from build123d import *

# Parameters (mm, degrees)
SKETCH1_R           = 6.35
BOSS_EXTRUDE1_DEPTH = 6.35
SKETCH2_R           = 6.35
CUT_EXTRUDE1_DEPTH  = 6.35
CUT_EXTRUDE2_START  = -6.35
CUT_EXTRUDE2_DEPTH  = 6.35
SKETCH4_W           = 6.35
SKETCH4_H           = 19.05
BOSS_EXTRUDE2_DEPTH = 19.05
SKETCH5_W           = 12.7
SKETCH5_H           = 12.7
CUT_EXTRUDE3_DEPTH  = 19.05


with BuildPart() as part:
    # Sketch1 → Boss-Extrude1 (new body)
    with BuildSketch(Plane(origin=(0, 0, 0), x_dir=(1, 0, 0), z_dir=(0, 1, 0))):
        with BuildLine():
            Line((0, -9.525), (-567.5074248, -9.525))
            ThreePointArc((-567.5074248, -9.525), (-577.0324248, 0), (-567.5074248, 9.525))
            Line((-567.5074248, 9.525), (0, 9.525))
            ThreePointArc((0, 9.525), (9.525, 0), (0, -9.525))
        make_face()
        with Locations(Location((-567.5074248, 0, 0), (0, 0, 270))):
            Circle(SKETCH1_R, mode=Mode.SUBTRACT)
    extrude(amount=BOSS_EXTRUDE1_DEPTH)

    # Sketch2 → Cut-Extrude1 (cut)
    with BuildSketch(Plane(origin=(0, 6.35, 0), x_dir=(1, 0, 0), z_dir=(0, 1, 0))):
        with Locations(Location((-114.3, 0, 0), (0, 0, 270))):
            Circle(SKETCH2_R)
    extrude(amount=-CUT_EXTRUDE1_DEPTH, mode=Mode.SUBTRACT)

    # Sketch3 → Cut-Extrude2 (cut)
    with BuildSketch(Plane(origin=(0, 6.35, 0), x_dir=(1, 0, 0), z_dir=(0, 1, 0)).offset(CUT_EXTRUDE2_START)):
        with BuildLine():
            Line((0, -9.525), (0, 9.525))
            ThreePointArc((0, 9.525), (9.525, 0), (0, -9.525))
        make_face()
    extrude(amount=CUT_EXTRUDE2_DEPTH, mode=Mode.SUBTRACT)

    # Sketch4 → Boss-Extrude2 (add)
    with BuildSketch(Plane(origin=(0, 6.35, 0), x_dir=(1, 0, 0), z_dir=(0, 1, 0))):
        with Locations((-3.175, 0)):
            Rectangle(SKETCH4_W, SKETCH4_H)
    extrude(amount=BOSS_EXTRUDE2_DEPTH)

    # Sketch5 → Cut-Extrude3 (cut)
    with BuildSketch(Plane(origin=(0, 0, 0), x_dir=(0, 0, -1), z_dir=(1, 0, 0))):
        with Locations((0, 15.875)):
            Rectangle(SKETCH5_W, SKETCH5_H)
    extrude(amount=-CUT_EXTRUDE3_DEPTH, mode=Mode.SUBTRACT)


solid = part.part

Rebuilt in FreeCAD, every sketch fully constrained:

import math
import FreeCAD as App
import Part
import Sketcher

V = App.Vector
Q = App.Units.Quantity

doc = App.newDocument("Part")
params = doc.addObject("Spreadsheet::Sheet", "Params")
for row, (alias, value) in enumerate([
    ("sketch1_diameter", "0.5 in"),
    ("sketch1_radius", "0.375 in"),
    ("pad1_length", "0.25 in"),
    ("sketch2_diameter", "0.5 in"),
    ("pocket1_length", "0.25 in"),
    ("sketch3_radius", "0.375 in"),
    ("pocket2_length", "0.25 in"),
    ("sketch4_width", "0.25 in"),
    ("sketch4_height", "0.75 in"),
    ("pad2_length", "0.75 in"),
    ("sketch5_width", "0.5 in"),
    ("pocket3_length", "0.75 in"),
], start=1):
    params.set(f"A{row}", alias)
    params.set(f"B{row}", "=" + value)
    params.setAlias(f"B{row}", alias)

body = doc.addObject("PartDesign::Body", "Body")

# Sketch on XZ plane
sketch1 = body.newObject("Sketcher::SketchObject", "Sketch")
sketch1.AttachmentSupport = (doc.getObject("XZ_Plane"), [""])
sketch1.MapMode = "FlatFace"
sketch1.addGeometry([
    Part.LineSegment(V(-568, 10, 0), V(0, 10, 0)),  # 0
    Part.ArcOfCircle(Part.Circle(V(0, 0, 0), V(0, 0, 1), 10), math.radians(-90), math.radians(90)),  # 1
    Part.LineSegment(V(0, -10, 0), V(-568, -10, 0)),  # 2
    Part.ArcOfCircle(Part.Circle(V(-568, 0, 0), V(0, 0, 1), 10), math.radians(90), math.radians(270)),  # 3
    Part.Circle(V(-568, 0, 0), V(0, 0, 1), 6),  # 4
], False)
sketch1.addConstraint([
    Sketcher.Constraint("Tangent", 0, 2, 1, 2),
    Sketcher.Constraint("Tangent", 1, 1, 2, 1),
    Sketcher.Constraint("Tangent", 2, 2, 3, 2),
    Sketcher.Constraint("Tangent", 3, 1, 0, 1),
    Sketcher.Constraint("Horizontal", 0),
    Sketcher.Constraint("Horizontal", 2),
    Sketcher.Constraint("Coincident", 1, 3, -1, 1),
    Sketcher.Constraint("Coincident", 4, 3, 3, 3),
    Sketcher.Constraint("Diameter", 4, Q("0.5 in")),
    Sketcher.Constraint("Radius", 1, Q("0.375 in")),
    Sketcher.Constraint("DistanceX", 0, 1, 0, 2, 567.507425),
])
sketch1.setExpression("Constraints[8]", "Params.sketch1_diameter")
sketch1.setExpression("Constraints[9]", "Params.sketch1_radius")
pad1 = body.newObject("PartDesign::Pad", "Pad")
pad1.Profile = sketch1
pad1.setExpression("Length", "Params.pad1_length")
pad1.Reversed = True

# Sketch on XZ plane
sketch2 = body.newObject("Sketcher::SketchObject", "Sketch001")
sketch2.AttachmentSupport = (doc.getObject("XZ_Plane"), [""])
sketch2.MapMode = "FlatFace"
sketch2.AttachmentOffset = App.Placement(V(0, 0, -0.25 * 25.4), App.Rotation())
sketch2.addGeometry(Part.Circle(V(-114, 0, 0), V(0, 0, 1), 6), False)
sketch2.addConstraint([
    Sketcher.Constraint("PointOnObject", 0, 3, -1),
    Sketcher.Constraint("Diameter", 0, Q("0.5 in")),
    Sketcher.Constraint("DistanceX", 0, 3, -1, 1, Q("4.5 in")),
])
sketch2.setExpression("Constraints[1]", "Params.sketch2_diameter")
pocket1 = body.newObject("PartDesign::Pocket", "Pocket")
pocket1.Profile = sketch2
pocket1.setExpression("Length", "Params.pocket1_length")
pocket1.Reversed = True

# Sketch on XZ plane
sketch3 = body.newObject("Sketcher::SketchObject", "Sketch002")
sketch3.AttachmentSupport = (doc.getObject("XZ_Plane"), [""])
sketch3.MapMode = "FlatFace"
sketch3.addGeometry([
    Part.LineSegment(V(0, -10, 0), V(0, 10, 0)),
    Part.ArcOfCircle(Part.Circle(V(0, 0, 0), V(0, 0, 1), 10), math.radians(-90), math.radians(90)),
], False)
sketch3.addConstraint([
    Sketcher.Constraint("Coincident", 0, 1, 1, 1),
    Sketcher.Constraint("Coincident", 1, 2, 0, 2),
    Sketcher.Constraint("Vertical", 0),
    Sketcher.Constraint("Coincident", 1, 3, -1, 1),
    Sketcher.Constraint("PointOnObject", 0, 1, -2),
    Sketcher.Constraint("Radius", 1, Q("0.375 in")),
])
sketch3.setExpression("Constraints[5]", "Params.sketch3_radius")
pocket2 = body.newObject("PartDesign::Pocket", "Pocket001")
pocket2.Profile = sketch3
pocket2.setExpression("Length", "Params.pocket2_length")

# Sketch on XZ plane
sketch4 = body.newObject("Sketcher::SketchObject", "Sketch003")
sketch4.AttachmentSupport = (doc.getObject("XZ_Plane"), [""])
sketch4.MapMode = "FlatFace"
sketch4.AttachmentOffset = App.Placement(V(0, 0, -0.25 * 25.4), App.Rotation())
sketch4.addGeometry([
    Part.LineSegment(V(-6, -10, 0), V(-6, 10, 0)),
    Part.LineSegment(V(-6, 10, 0), V(0, 10, 0)),
    Part.LineSegment(V(0, 10, 0), V(0, -10, 0)),
    Part.LineSegment(V(0, -10, 0), V(-6, -10, 0)),
], False)
sketch4.addConstraint([
    Sketcher.Constraint("Coincident", 0, 2, 1, 1),
    Sketcher.Constraint("Coincident", 1, 2, 2, 1),
    Sketcher.Constraint("Coincident", 2, 2, 3, 1),
    Sketcher.Constraint("Coincident", 3, 2, 0, 1),
    Sketcher.Constraint("Vertical", 0),
    Sketcher.Constraint("Horizontal", 1),
    Sketcher.Constraint("Vertical", 2),
    Sketcher.Constraint("Horizontal", 3),
    Sketcher.Constraint("Symmetric", 1, 2, 2, 2, -1, 1),
    Sketcher.Constraint("DistanceX", 1, 1, 1, 2, Q("0.25 in")),
    Sketcher.Constraint("DistanceY", 0, 1, 0, 2, Q("0.75 in")),
])
sketch4.setExpression("Constraints[9]", "Params.sketch4_width")
sketch4.setExpression("Constraints[10]", "Params.sketch4_height")
pad2 = body.newObject("PartDesign::Pad", "Pad001")
pad2.Profile = sketch4
pad2.setExpression("Length", "Params.pad2_length")
pad2.Reversed = True

# Sketch on YZ plane
sketch5 = body.newObject("Sketcher::SketchObject", "Sketch004")
sketch5.AttachmentSupport = (doc.getObject("YZ_Plane"), [""])
sketch5.MapMode = "FlatFace"
sketch5.addGeometry([
    Part.LineSegment(V(22, 6, 0), V(10, 6, 0)),
    Part.LineSegment(V(10, 6, 0), V(10, -6, 0)),
    Part.LineSegment(V(10, -6, 0), V(22, -6, 0)),
    Part.LineSegment(V(22, -6, 0), V(22, 6, 0)),
], False)
sketch5.addConstraint([
    Sketcher.Constraint("Coincident", 0, 2, 1, 1),
    Sketcher.Constraint("Coincident", 1, 2, 2, 1),
    Sketcher.Constraint("Coincident", 2, 2, 3, 1),
    Sketcher.Constraint("Coincident", 3, 2, 0, 1),
    Sketcher.Constraint("Horizontal", 0),
    Sketcher.Constraint("Vertical", 1),
    Sketcher.Constraint("Horizontal", 2),
    Sketcher.Constraint("Vertical", 3),
    Sketcher.Constraint("Equal", 2, 1),
    Sketcher.Constraint("DistanceX", 0, 2, 0, 1, Q("0.5 in")),
    Sketcher.Constraint("DistanceY", -1, 1, 0, 2, Q("0.25 in")),
    Sketcher.Constraint("DistanceX", -1, 1, 0, 2, Q("0.375 in")),
])
sketch5.setExpression("Constraints[9]", "Params.sketch5_width")
pocket3 = body.newObject("PartDesign::Pocket", "Pocket002")
pocket3.Profile = sketch5
pocket3.setExpression("Length", "Params.pocket3_length")

doc.recompute()
